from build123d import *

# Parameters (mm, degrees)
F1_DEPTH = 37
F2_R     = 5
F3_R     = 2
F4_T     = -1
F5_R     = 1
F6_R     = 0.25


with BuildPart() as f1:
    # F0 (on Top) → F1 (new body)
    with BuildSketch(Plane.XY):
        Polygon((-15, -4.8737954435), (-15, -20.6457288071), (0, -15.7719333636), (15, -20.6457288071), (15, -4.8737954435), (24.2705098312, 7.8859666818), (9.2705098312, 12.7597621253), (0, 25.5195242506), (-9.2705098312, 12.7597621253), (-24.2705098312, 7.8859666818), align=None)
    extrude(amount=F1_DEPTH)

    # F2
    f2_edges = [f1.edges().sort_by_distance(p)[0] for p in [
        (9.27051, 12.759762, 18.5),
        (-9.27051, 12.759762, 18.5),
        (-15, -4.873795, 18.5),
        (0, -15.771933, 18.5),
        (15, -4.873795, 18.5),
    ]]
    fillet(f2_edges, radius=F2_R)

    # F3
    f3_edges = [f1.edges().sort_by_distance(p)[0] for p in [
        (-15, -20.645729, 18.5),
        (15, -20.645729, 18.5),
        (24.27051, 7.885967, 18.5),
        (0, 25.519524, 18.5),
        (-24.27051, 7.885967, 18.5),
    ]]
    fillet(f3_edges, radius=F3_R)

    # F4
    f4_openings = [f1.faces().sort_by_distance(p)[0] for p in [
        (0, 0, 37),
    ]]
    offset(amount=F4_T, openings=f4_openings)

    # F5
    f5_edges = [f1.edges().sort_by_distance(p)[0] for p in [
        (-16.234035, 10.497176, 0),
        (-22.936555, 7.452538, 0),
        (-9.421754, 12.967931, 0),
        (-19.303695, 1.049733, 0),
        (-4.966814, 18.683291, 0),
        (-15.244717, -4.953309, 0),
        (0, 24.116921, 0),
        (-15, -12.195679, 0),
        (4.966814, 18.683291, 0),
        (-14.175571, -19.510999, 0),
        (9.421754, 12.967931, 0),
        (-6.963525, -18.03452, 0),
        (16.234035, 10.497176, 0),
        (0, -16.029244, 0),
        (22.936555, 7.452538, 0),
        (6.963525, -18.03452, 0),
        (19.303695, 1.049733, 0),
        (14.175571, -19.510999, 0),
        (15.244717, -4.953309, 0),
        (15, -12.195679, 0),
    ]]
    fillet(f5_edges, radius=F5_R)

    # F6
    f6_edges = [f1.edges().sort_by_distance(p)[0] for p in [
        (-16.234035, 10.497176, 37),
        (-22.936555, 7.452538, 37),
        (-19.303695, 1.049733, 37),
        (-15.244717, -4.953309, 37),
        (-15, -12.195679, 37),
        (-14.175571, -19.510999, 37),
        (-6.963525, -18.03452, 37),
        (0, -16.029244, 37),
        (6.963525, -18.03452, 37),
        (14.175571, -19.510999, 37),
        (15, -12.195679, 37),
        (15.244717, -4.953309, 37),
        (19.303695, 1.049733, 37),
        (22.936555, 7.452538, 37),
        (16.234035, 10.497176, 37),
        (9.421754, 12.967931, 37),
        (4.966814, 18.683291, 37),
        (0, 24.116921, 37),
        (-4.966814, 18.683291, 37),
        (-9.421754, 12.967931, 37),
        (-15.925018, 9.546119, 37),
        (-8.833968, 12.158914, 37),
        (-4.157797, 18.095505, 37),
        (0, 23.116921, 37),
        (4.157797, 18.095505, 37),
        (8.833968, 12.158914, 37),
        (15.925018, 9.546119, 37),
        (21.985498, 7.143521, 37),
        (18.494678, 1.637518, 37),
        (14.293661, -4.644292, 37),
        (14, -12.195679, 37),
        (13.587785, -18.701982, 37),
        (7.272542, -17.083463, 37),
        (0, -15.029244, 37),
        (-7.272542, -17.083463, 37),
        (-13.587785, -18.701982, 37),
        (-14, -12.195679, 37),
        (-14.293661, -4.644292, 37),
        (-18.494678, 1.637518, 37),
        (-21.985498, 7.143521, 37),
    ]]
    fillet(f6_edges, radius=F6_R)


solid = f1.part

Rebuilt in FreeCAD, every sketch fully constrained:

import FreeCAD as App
import Part
import Sketcher

V = App.Vector
Q = App.Units.Quantity


def edges_at(feature, points):
    """Names of the edges that pass closest to the given points."""
    edges = feature.Shape.Edges
    near = lambda p: min(range(len(edges)), key=lambda i: edges[i].distToShape(Part.Vertex(*p))[0])
    return sorted({f"Edge{near(p) + 1}" for p in points})


def faces_at(feature, points):
    """Names of the faces that lie closest to the given points."""
    faces = feature.Shape.Faces
    near = lambda p: min(range(len(faces)), key=lambda i: faces[i].distToShape(Part.Vertex(*p))[0])
    return sorted({f"Face{near(p) + 1}" for p in points})

doc = App.newDocument("Part")
params = doc.addObject("Spreadsheet::Sheet", "Params")
for row, (alias, value) in enumerate([
    ("pad1_length", "37 mm"),
    ("fillet_radius", "5 mm"),
    ("fillet2_radius", "2 mm"),
    ("thickness_wall", "1 mm"),
    ("fillet3_radius", "1 mm"),
    ("fillet4_radius", "0.25 mm"),
], start=1):
    params.set(f"A{row}", alias)
    params.set(f"B{row}", "=" + value)
    params.setAlias(f"B{row}", alias)

body = doc.addObject("PartDesign::Body", "Body")

# Sketch on XY plane
sketch1 = body.newObject("Sketcher::SketchObject", "Sketch")
sketch1.AttachmentSupport = (doc.getObject("XY_Plane"), [""])
sketch1.MapMode = "FlatFace"
sketch1.addGeometry([
    Part.LineSegment(V(-15, -4.873795, 0), V(-15, -20.645729, 0)),  # 0
    Part.LineSegment(V(-15, -20.645729, 0), V(0, -15.771933, 0)),  # 1
    Part.LineSegment(V(0, -15.771933, 0), V(15, -20.645729, 0)),  # 2
    Part.LineSegment(V(15, -20.645729, 0), V(15, -4.873795, 0)),  # 3
    Part.LineSegment(V(15, -4.873795, 0), V(24.27051, 7.885967, 0)),  # 4
    Part.LineSegment(V(24.27051, 7.885967, 0), V(9.27051, 12.759762, 0)),  # 5
    Part.LineSegment(V(9.27051, 12.759762, 0), V(0, 25.519524, 0)),  # 6
    Part.LineSegment(V(0, 25.519524, 0), V(-9.27051, 12.759762, 0)),  # 7
    Part.LineSegment(V(-9.27051, 12.759762, 0), V(-24.27051, 7.885967, 0)),  # 8
    Part.LineSegment(V(-24.27051, 7.885967, 0), V(-15, -4.873795, 0)),  # 9
], False)
sketch1.addConstraint([
    Sketcher.Constraint("Coincident", 0, 2, 1, 1),
    Sketcher.Constraint("Coincident", 1, 2, 2, 1),
    Sketcher.Constraint("Coincident", 2, 2, 3, 1),
    Sketcher.Constraint("Coincident", 3, 2, 4, 1),
    Sketcher.Constraint("Coincident", 4, 2, 5, 1),
    Sketcher.Constraint("Coincident", 5, 2, 6, 1),
    Sketcher.Constraint("Coincident", 6, 2, 7, 1),
    Sketcher.Constraint("Coincident", 7, 2, 8, 1),
    Sketcher.Constraint("Coincident", 8, 2, 9, 1),
    Sketcher.Constraint("Coincident", 9, 2, 0, 1),
    Sketcher.Constraint("Vertical", 0),
    Sketcher.Constraint("Vertical", 3),
    Sketcher.Constraint("Symmetric", 0, 2, 2, 2, -2),
    Sketcher.Constraint("Symmetric", 5, 2, 7, 2, -2),
    Sketcher.Constraint("Symmetric", 4, 2, 8, 2, -2),
    Sketcher.Constraint("PointOnObject", 1, 2, -2),
    Sketcher.Constraint("PointOnObject", 6, 2, -2),
    Sketcher.Constraint("Parallel", 2, 5),
    Sketcher.Constraint("Parallel", 4, 7),
    Sketcher.Constraint("Parallel", 6, 9),
    Sketcher.Constraint("Equal", 2, 4),
    Sketcher.Constraint("Equal", 4, 5),
    Sketcher.Constraint("Angle", 1, Q("18 deg")),
    Sketcher.Constraint("Angle", 4, Q("54 deg")),
    Sketcher.Constraint("DistanceX", 0, 2, -1, 1, Q("15 mm")),
    Sketcher.Constraint("DistanceY", 1, 2, 4, 2, Q("23.6579 mm")),
    Sketcher.Constraint("DistanceY", 0, 2, -1, 1, Q("20.645729 mm")),
])
pad1 = body.newObject("PartDesign::Pad", "Pad")
pad1.Profile = sketch1
pad1.setExpression("Length", "Params.pad1_length")
doc.recompute()

fillet = body.newObject("PartDesign::Fillet", "Fillet")
fillet.Base = (pad1, edges_at(pad1, [
    (9.271, 12.76, 18.5),
    (-9.271, 12.76, 18.5),
    (-15, -4.874, 18.5),
    (0, -15.772, 18.5),
    (15, -4.874, 18.5),
]))
fillet.setExpression("Radius", "Params.fillet_radius")
doc.recompute()

fillet2 = body.newObject("PartDesign::Fillet", "Fillet001")
fillet2.Base = (fillet, edges_at(fillet, [
    (-15, -20.646, 18.5),
    (15, -20.646, 18.5),
    (24.271, 7.886, 18.5),
    (0, 25.52, 18.5),
    (-24.271, 7.886, 18.5),
]))
fillet2.setExpression("Radius", "Params.fillet2_radius")
doc.recompute()

thickness = body.newObject("PartDesign::Thickness", "Thickness")
thickness.Base = (fillet2, faces_at(fillet2, [(0, 2.112, 37)]))
thickness.setExpression("Value", "Params.thickness_wall")
thickness.Reversed = True
thickness.Join = "Arc"
doc.recompute()

fillet3 = body.newObject("PartDesign::Fillet", "Fillet002")
fillet3.Base = (thickness, edges_at(thickness, [
    (-16.234, 10.497, 0),
    (-22.937, 7.453, 0),
    (-9.422, 12.968, 0),
    (-19.304, 1.05, 0),
    (-4.967, 18.683, 0),
    (-15.245, -4.953, 0),
    (0, 24.117, 0),
    (-15, -12.196, 0),
    (4.967, 18.683, 0),
    (-14.176, -19.511, 0),
    (9.422, 12.968, 0),
    (-6.964, -18.035, 0),
    (16.234, 10.497, 0),
    (0, -16.029, 0),
    (22.937, 7.453, 0),
    (6.964, -18.035, 0),
    (19.304, 1.05, 0),
    (14.176, -19.511, 0),
    (15.245, -4.953, 0),
    (15, -12.196, 0),
]))
fillet3.setExpression("Radius", "Params.fillet3_radius")
doc.recompute()

fillet4 = body.newObject("PartDesign::Fillet", "Fillet003")
fillet4.Base = (fillet3, edges_at(fillet3, [
    (-16.234, 10.497, 37),
    (-22.937, 7.453, 37),
    (-19.304, 1.05, 37),
    (-15.245, -4.953, 37),
    (-15, -12.196, 37),
    (-14.176, -19.511, 37),
    (-6.964, -18.035, 37),
    (0, -16.029, 37),
    (6.964, -18.035, 37),
    (14.176, -19.511, 37),
    (15, -12.196, 37),
    (15.245, -4.953, 37),
    (19.304, 1.05, 37),
    (22.937, 7.453, 37),
    (16.234, 10.497, 37),
    (9.422, 12.968, 37),
    (4.967, 18.683, 37),
    (0, 24.117, 37),
    (-4.967, 18.683, 37),
    (-9.422, 12.968, 37),
    (-15.925, 9.546, 37),
    (-8.834, 12.159, 37),
    (-4.158, 18.096, 37),
    (0, 23.117, 37),
    (4.158, 18.096, 37),
    (8.834, 12.159, 37),
    (15.925, 9.546, 37),
    (21.985, 7.144, 37),
    (18.495, 1.638, 37),
    (14.294, -4.644, 37),
    (14, -12.196, 37),
    (13.588, -18.702, 37),
    (7.273, -17.083, 37),
    (0, -15.029, 37),
    (-7.273, -17.083, 37),
    (-13.588, -18.702, 37),
    (-14, -12.196, 37),
    (-14.294, -4.644, 37),
    (-18.495, 1.638, 37),
    (-21.985, 7.144, 37),
]))
fillet4.setExpression("Radius", "Params.fillet4_radius")

doc.recompute()
